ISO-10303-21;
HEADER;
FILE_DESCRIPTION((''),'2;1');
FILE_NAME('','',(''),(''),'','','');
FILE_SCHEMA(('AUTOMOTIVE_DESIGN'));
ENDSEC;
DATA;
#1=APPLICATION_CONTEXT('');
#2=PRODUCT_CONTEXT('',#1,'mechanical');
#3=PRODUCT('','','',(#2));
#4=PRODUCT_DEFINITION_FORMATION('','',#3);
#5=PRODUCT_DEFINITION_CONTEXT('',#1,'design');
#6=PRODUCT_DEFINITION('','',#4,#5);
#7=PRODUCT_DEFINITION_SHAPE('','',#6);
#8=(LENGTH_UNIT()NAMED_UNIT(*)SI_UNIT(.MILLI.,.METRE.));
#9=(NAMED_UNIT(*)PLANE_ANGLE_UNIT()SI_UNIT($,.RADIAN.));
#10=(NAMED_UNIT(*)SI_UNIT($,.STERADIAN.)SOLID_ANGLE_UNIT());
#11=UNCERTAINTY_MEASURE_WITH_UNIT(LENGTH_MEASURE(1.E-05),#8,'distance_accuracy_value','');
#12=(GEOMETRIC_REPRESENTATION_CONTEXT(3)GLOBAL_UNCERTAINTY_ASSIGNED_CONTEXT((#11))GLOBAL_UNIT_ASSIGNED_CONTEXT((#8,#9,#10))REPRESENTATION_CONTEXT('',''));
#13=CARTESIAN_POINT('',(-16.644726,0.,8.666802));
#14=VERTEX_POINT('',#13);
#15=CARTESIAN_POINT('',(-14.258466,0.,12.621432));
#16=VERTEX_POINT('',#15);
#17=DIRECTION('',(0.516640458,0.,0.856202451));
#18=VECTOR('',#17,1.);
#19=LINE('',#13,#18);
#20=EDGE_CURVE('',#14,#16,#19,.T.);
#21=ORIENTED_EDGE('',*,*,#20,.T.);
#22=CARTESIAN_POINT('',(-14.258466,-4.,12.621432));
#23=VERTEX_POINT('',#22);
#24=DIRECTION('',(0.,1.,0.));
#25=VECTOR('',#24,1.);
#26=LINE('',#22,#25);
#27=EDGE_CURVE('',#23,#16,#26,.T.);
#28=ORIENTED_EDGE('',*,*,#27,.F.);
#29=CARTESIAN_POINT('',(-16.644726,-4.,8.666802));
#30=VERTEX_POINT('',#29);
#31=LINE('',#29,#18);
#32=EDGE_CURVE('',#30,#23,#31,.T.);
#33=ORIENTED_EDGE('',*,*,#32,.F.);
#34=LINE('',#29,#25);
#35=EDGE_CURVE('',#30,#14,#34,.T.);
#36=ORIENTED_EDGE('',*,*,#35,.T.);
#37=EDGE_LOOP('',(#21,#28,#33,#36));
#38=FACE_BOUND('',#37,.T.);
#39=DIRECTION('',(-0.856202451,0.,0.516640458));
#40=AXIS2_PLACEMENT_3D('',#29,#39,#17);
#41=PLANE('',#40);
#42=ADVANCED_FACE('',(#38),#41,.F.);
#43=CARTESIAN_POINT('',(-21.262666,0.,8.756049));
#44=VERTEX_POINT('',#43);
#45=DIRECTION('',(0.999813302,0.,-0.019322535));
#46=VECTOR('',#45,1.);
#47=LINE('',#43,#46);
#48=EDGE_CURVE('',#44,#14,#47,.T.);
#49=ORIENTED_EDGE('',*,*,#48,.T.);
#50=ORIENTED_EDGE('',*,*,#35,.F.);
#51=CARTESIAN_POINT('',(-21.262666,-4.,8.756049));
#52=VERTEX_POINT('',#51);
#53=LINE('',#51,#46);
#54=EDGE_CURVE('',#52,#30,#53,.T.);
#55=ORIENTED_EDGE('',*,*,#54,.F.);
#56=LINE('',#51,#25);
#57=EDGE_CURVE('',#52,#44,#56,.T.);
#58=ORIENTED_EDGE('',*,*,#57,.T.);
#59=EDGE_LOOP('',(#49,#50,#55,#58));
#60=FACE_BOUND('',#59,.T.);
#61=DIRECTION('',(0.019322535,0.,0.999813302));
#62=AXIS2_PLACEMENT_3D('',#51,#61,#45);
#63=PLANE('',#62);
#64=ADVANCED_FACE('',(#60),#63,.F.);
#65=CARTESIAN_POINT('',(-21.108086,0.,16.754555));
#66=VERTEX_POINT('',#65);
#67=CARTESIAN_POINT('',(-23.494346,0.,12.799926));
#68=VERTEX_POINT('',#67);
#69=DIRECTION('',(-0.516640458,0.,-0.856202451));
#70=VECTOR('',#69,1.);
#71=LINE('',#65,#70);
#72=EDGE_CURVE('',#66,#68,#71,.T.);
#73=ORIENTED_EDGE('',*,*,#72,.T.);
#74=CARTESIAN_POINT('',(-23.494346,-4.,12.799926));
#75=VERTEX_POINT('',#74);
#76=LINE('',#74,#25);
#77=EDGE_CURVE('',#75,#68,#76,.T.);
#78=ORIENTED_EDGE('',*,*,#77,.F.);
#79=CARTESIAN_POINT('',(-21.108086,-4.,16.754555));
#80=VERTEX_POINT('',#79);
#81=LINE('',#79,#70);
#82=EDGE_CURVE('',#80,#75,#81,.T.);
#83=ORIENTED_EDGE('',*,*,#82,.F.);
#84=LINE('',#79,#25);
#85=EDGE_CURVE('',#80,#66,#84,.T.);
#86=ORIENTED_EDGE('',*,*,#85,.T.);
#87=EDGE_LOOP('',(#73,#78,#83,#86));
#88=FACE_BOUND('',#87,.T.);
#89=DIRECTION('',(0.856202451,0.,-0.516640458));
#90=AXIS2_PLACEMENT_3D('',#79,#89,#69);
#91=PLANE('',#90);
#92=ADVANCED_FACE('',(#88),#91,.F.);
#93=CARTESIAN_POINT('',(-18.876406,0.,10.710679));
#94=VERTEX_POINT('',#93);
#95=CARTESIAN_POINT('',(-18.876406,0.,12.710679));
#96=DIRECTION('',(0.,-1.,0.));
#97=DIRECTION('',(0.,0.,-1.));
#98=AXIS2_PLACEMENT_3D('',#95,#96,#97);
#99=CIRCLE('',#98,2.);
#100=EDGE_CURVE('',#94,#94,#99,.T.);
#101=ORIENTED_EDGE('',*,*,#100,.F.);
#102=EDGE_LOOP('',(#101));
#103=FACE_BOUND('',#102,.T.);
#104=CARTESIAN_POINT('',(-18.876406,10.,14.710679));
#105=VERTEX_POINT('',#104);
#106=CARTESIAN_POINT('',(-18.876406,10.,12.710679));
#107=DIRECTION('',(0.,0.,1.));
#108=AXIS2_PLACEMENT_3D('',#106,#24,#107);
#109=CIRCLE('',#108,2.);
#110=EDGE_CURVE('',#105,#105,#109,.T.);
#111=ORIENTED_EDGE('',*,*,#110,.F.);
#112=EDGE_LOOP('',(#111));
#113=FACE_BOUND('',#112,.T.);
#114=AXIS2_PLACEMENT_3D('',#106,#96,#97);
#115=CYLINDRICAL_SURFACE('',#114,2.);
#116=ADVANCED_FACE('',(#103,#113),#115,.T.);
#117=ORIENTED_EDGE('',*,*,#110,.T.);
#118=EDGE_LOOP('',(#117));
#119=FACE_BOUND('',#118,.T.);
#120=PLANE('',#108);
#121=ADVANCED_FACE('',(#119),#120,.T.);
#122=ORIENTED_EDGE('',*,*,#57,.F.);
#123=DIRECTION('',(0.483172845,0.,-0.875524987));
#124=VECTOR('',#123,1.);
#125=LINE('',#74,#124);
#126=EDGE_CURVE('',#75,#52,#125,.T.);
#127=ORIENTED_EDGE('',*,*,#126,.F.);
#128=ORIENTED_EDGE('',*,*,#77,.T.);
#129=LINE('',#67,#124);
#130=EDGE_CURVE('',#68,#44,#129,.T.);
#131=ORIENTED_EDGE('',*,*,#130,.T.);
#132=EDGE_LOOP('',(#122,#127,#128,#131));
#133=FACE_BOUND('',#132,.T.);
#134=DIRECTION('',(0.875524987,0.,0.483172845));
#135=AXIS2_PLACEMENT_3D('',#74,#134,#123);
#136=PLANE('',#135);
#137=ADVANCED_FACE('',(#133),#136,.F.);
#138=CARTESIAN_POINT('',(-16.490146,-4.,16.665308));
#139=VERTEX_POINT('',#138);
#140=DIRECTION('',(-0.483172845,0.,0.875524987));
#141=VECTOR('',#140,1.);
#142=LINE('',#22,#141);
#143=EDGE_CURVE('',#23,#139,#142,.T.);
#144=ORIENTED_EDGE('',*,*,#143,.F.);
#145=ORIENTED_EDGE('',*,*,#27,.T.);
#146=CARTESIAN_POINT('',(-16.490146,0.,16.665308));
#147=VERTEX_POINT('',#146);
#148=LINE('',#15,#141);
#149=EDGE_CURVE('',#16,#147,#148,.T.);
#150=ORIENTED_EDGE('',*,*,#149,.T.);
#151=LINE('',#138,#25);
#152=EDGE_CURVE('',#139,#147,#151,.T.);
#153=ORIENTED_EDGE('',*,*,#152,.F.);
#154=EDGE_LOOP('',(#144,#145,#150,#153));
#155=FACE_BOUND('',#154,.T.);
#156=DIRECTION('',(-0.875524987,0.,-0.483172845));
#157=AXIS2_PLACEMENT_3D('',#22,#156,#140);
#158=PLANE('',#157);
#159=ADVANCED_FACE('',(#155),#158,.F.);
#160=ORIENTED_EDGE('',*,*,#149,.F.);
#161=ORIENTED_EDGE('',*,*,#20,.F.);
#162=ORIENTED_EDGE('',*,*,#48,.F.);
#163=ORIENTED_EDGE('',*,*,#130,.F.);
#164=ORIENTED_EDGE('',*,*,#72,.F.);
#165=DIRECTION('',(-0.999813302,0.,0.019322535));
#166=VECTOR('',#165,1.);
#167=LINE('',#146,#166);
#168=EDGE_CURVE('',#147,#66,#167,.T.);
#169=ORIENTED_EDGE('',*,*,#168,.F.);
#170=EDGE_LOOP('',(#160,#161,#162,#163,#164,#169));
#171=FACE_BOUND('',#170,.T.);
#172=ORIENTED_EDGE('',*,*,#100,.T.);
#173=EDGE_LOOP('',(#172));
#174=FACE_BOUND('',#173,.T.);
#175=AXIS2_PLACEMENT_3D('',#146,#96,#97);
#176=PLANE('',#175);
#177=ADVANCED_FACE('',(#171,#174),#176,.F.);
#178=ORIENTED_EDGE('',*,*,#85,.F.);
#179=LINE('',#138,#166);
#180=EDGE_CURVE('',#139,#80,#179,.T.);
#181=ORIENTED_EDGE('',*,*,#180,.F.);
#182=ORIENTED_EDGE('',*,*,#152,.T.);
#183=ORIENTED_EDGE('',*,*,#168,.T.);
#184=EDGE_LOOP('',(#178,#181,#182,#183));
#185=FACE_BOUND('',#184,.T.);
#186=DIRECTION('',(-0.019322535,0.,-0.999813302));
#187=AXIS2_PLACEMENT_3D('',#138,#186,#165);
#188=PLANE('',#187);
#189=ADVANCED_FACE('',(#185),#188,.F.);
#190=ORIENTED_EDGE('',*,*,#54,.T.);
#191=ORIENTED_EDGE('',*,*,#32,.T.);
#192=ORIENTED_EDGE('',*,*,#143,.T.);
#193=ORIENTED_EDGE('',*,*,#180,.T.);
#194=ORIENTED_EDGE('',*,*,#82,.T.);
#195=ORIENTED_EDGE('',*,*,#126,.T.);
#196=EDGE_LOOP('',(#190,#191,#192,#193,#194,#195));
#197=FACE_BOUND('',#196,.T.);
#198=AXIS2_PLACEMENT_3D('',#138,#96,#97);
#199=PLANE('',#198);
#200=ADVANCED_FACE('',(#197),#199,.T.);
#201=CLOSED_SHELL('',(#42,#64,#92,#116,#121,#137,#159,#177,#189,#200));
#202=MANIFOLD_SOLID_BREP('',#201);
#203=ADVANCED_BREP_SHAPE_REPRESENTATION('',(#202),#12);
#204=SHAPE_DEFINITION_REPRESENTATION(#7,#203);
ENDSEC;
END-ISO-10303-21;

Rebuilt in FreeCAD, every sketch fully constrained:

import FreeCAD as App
import Part
import Sketcher

V = App.Vector

doc = App.newDocument("Part")
body = doc.addObject("PartDesign::Body", "Body")

# Sketch on XZ plane
sketch1 = body.newObject("Sketcher::SketchObject", "Sketch")
sketch1.AttachmentSupport = (doc.getObject("XZ_Plane"), [""])
sketch1.MapMode = "FlatFace"
sketch1.addGeometry(Part.Circle(V(-18.9, 12.7, 0), V(0, 0, 1), 2), False)
sketch1.addConstraint(Sketcher.Constraint("Diameter", 0, 4.0))
sketch1.addConstraint(Sketcher.Constraint("DistanceY", -1, 1, 0, 3, 12.710679))
sketch1.addConstraint(Sketcher.Constraint("DistanceX", 0, 3, -1, 1, 18.876406))
pad1 = body.newObject("PartDesign::Pad", "Pad")
pad1.Profile = sketch1
pad1.Length = 10
pad1.Reversed = True

# Sketch on XZ plane
sketch2 = body.newObject("Sketcher::SketchObject", "Sketch001")
sketch2.AttachmentSupport = (doc.getObject("XZ_Plane"), [""])
sketch2.MapMode = "FlatFace"
sketch2.addGeometry(Part.LineSegment(V(-16.5, 16.7, 0), V(-21.1, 16.8, 0)), False)
sketch2.addGeometry(Part.LineSegment(V(-21.1, 16.8, 0), V(-23.5, 12.8, 0)), False)
sketch2.addGeometry(Part.LineSegment(V(-23.5, 12.8, 0), V(-21.3, 8.8, 0)), False)
sketch2.addGeometry(Part.LineSegment(V(-21.3, 8.8, 0), V(-16.6, 8.7, 0)), False)
sketch2.addGeometry(Part.LineSegment(V(-16.6, 8.7, 0), V(-14.3, 12.6, 0)), False)
sketch2.addGeometry(Part.LineSegment(V(-14.3, 12.6, 0), V(-16.5, 16.7, 0)), False)
sketch2.addConstraint(Sketcher.Constraint("Coincident", 0, 2, 1, 1))
sketch2.addConstraint(Sketcher.Constraint("Coincident", 1, 2, 2, 1))
sketch2.addConstraint(Sketcher.Constraint("Coincident", 2, 2, 3, 1))
sketch2.addConstraint(Sketcher.Constraint("Coincident", 3, 2, 4, 1))
sketch2.addConstraint(Sketcher.Constraint("Coincident", 4, 2, 5, 1))
sketch2.addConstraint(Sketcher.Constraint("Coincident", 5, 2, 0, 1))
sketch2.addConstraint(Sketcher.Constraint("Parallel", 0, 3))
sketch2.addConstraint(Sketcher.Constraint("Parallel", 1, 4))
sketch2.addConstraint(Sketcher.Constraint("Parallel", 2, 5))
sketch2.addConstraint(Sketcher.Constraint("Equal", 0, 1))
sketch2.addConstraint(Sketcher.Constraint("Equal", 1, 2))
sketch2.addConstraint(Sketcher.Constraint("Equal", 2, 3))
sketch2.addConstraint(Sketcher.Constraint("DistanceY", -1, 1, 3, 2, 8.666802))
sketch2.addConstraint(Sketcher.Constraint("DistanceX", 2, 2, 4, 2, 7.0042))
sketch2.addConstraint(Sketcher.Constraint("DistanceY", -1, 1, 2, 2, 8.756049))
sketch2.addConstraint(Sketcher.Constraint("DistanceY", -1, 1, 4, 2, 12.621432))
sketch2.addConstraint(Sketcher.Constraint("DistanceY", -1, 1, 5, 2, 16.665308))
sketch2.addConstraint(Sketcher.Constraint("DistanceX", 0, 2, -1, 1, 21.108086))
pad2 = body.newObject("PartDesign::Pad", "Pad001")
pad2.Profile = sketch2
pad2.Length = 4

doc.recompute()
